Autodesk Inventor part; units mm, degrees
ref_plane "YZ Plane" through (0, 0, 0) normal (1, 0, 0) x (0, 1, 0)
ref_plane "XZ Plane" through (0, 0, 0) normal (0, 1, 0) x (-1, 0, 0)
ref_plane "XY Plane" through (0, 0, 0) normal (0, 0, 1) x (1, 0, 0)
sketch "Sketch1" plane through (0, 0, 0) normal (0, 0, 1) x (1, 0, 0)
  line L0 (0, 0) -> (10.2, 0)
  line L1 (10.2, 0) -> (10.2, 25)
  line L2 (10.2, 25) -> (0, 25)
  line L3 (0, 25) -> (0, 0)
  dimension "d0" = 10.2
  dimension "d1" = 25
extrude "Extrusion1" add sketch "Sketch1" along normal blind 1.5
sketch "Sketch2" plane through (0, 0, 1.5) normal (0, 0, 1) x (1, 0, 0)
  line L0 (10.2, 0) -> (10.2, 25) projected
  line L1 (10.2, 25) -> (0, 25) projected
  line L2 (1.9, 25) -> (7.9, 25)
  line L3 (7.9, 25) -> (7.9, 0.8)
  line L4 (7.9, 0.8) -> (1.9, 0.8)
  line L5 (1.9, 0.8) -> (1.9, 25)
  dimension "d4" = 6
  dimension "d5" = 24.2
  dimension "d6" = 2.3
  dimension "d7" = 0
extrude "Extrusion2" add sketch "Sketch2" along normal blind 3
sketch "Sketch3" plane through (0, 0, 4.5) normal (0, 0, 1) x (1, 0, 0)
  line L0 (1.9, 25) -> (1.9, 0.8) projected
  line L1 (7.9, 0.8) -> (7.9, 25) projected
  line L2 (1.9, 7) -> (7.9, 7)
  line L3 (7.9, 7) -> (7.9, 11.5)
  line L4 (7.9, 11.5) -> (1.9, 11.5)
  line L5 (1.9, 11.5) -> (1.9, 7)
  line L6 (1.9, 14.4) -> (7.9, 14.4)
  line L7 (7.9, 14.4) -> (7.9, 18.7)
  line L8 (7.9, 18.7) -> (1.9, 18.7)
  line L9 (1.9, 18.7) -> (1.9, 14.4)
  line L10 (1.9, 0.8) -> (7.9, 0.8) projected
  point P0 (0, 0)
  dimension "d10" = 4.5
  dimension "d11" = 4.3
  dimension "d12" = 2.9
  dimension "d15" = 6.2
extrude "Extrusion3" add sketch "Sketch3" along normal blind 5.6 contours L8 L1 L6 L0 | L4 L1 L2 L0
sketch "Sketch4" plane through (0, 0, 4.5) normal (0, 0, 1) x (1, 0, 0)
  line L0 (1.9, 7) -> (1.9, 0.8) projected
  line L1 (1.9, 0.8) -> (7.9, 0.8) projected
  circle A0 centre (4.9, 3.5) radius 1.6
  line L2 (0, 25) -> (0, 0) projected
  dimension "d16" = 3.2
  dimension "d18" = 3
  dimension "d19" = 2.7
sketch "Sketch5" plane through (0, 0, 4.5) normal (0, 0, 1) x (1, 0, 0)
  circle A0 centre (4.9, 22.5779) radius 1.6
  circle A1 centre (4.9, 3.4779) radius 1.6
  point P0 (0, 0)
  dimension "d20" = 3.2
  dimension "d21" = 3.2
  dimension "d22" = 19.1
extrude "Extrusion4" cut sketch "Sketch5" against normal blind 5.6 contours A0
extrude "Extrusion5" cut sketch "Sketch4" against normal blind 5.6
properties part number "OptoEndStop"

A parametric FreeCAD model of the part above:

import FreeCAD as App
import Part
import Sketcher

V = App.Vector
Q = App.Units.Quantity

doc = App.newDocument("Part")
params = doc.addObject("Spreadsheet::Sheet", "Params")
for row, (alias, value) in enumerate([
    ("sketch1_height", "25 mm"),
    ("sketch1_width", "10.2 mm"),
    ("pad1_length", "1.5 mm"),
    ("sketch2_width", "6 mm"),
    ("sketch2_height", "24.2 mm"),
    ("pad2_length", "3 mm"),
    ("sketch3_height", "4.3 mm"),
    ("sketch3_height2", "4.5 mm"),
    ("sketch3_width", "6 mm"),
    ("pad3_length", "5.6 mm"),
    ("sketch4_diameter", "3.2 mm"),
    ("pocket1_length", "5.6 mm"),
    ("sketch5_diameter", "3.2 mm"),
    ("pocket2_length", "5.6 mm"),
], start=1):
    params.set(f"A{row}", alias)
    params.set(f"B{row}", "=" + value)
    params.setAlias(f"B{row}", alias)

body = doc.addObject("PartDesign::Body", "Body")

sketch1 = body.newObject("Sketcher::SketchObject", "Sketch")
sketch1.AttachmentSupport = (doc.getObject("XY_Plane"), [""])
sketch1.MapMode = "FlatFace"
sketch1.addGeometry([
    Part.LineSegment(V(0, 25, 0), V(0, 0, 0)),
    Part.LineSegment(V(0, 0, 0), V(10, 0, 0)),
    Part.LineSegment(V(10, 0, 0), V(10, 25, 0)),
    Part.LineSegment(V(10, 25, 0), V(0, 25, 0)),
], False)
sketch1.addConstraint([
    Sketcher.Constraint("Coincident", 0, 2, 1, 1),
    Sketcher.Constraint("Coincident", 1, 2, 2, 1),
    Sketcher.Constraint("Coincident", 2, 2, 3, 1),
    Sketcher.Constraint("Coincident", 3, 2, 0, 1),
    Sketcher.Constraint("Vertical", 0),
    Sketcher.Constraint("Horizontal", 1),
    Sketcher.Constraint("Vertical", 2),
    Sketcher.Constraint("Horizontal", 3),
    Sketcher.Constraint("Coincident", 0, 2, -1, 1),
    Sketcher.Constraint("DistanceY", 0, 2, 0, 1, Q("25 mm")),
    Sketcher.Constraint("DistanceX", 1, 1, 1, 2, Q("10.2 mm")),
])
sketch1.setExpression("Constraints[9]", "Params.sketch1_height")
sketch1.setExpression("Constraints[10]", "Params.sketch1_width")
pad1 = body.newObject("PartDesign::Pad", "Pad")
pad1.Profile = sketch1
pad1.setExpression("Length", "Params.pad1_length")

sketch2 = body.newObject("Sketcher::SketchObject", "Sketch001")
sketch2.AttachmentSupport = (doc.getObject("XY_Plane"), [""])
sketch2.MapMode = "FlatFace"
sketch2.AttachmentOffset = App.Placement(V(0, 0, 1.5), App.Rotation())
sketch2.addGeometry([
    Part.LineSegment(V(8, 1, 0), V(8, 25, 0)),
    Part.LineSegment(V(8, 25, 0), V(2, 25, 0)),
    Part.LineSegment(V(2, 25, 0), V(2, 1, 0)),
    Part.LineSegment(V(2, 1, 0), V(8, 1, 0)),
], False)
sketch2.addConstraint([
    Sketcher.Constraint("Coincident", 0, 2, 1, 1),
    Sketcher.Constraint("Coincident", 1, 2, 2, 1),
    Sketcher.Constraint("Coincident", 2, 2, 3, 1),
    Sketcher.Constraint("Coincident", 3, 2, 0, 1),
    Sketcher.Constraint("Vertical", 0),
    Sketcher.Constraint("Horizontal", 1),
    Sketcher.Constraint("Vertical", 2),
    Sketcher.Constraint("Horizontal", 3),
    Sketcher.Constraint("DistanceX", 1, 2, 1, 1, Q("6 mm")),
    Sketcher.Constraint("DistanceY", 0, 1, 0, 2, Q("24.2 mm")),
    Sketcher.Constraint("DistanceY", -1, 1, 0, 2, Q("25 mm")),
    Sketcher.Constraint("DistanceX", -1, 1, 0, 2, Q("7.9 mm")),
])
sketch2.setExpression("Constraints[8]", "Params.sketch2_width")
sketch2.setExpression("Constraints[9]", "Params.sketch2_height")
pad2 = body.newObject("PartDesign::Pad", "Pad001")
pad2.Profile = sketch2
pad2.setExpression("Length", "Params.pad2_length")

sketch3 = body.newObject("Sketcher::SketchObject", "Sketch002")
sketch3.AttachmentSupport = (doc.getObject("XY_Plane"), [""])
sketch3.MapMode = "FlatFace"
sketch3.AttachmentOffset = App.Placement(V(0, 0, 4.5), App.Rotation())
sketch3.addGeometry([
    Part.LineSegment(V(7.9, 18.7, 0), V(1.9, 18.7, 0)),
    Part.LineSegment(V(1.9, 18.7, 0), V(1.9, 14.4, 0)),
    Part.LineSegment(V(1.9, 14.4, 0), V(7.9, 14.4, 0)),
    Part.LineSegment(V(7.9, 14.4, 0), V(7.9, 18.7, 0)),
    Part.LineSegment(V(7.9, 11.5, 0), V(1.9, 11.5, 0)),
    Part.LineSegment(V(1.9, 11.5, 0), V(1.9, 7, 0)),
    Part.LineSegment(V(1.9, 7, 0), V(7.9, 7, 0)),
    Part.LineSegment(V(7.9, 7, 0), V(7.9, 11.5, 0)),
], False)
sketch3.addConstraint([
    Sketcher.Constraint("Coincident", 0, 2, 1, 1),
    Sketcher.Constraint("Coincident", 1, 2, 2, 1),
    Sketcher.Constraint("Coincident", 2, 2, 3, 1),
    Sketcher.Constraint("Coincident", 3, 2, 0, 1),
    Sketcher.Constraint("Coincident", 4, 2, 5, 1),
    Sketcher.Constraint("Coincident", 5, 2, 6, 1),
    Sketcher.Constraint("Coincident", 6, 2, 7, 1),
    Sketcher.Constraint("Coincident", 7, 2, 4, 1),
    Sketcher.Constraint("Horizontal", 0),
    Sketcher.Constraint("Vertical", 1),
    Sketcher.Constraint("Horizontal", 2),
    Sketcher.Constraint("Vertical", 3),
    Sketcher.Constraint("Horizontal", 4),
    Sketcher.Constraint("Vertical", 5),
    Sketcher.Constraint("Horizontal", 6),
    Sketcher.Constraint("Vertical", 7),
    Sketcher.Constraint("Vertical", 1, 2, 4, 2),
    Sketcher.Constraint("Vertical", 3, 2, 6, 2),
    Sketcher.Constraint("DistanceY", 1, 2, 1, 1, Q("4.3 mm")),
    Sketcher.Constraint("DistanceY", 5, 2, 5, 1, Q("4.5 mm")),
    Sketcher.Constraint("DistanceY", 4, 2, 1, 2, Q("2.9 mm")),
    Sketcher.Constraint("DistanceX", 0, 2, 0, 1, Q("6 mm")),
    Sketcher.Constraint("DistanceY", -1, 1, 5, 2, Q("7 mm")),
    Sketcher.Constraint("DistanceX", -1, 1, 0, 2, Q("1.9 mm")),
])
sketch3.setExpression("Constraints[18]", "Params.sketch3_height")
sketch3.setExpression("Constraints[19]", "Params.sketch3_height2")
sketch3.setExpression("Constraints[21]", "Params.sketch3_width")
pad3 = body.newObject("PartDesign::Pad", "Pad002")
pad3.Profile = sketch3
pad3.setExpression("Length", "Params.pad3_length")

sketch4 = body.newObject("Sketcher::SketchObject", "Sketch003")
sketch4.AttachmentSupport = (doc.getObject("XY_Plane"), [""])
sketch4.MapMode = "FlatFace"
sketch4.AttachmentOffset = App.Placement(V(0, 0, 4.5), App.Rotation())
sketch4.addGeometry(Part.Circle(V(4.9, 22.6, 0), V(0, 0, 1), 1.6), False)
sketch4.addConstraint([
    Sketcher.Constraint("Diameter", 0, Q("3.2 mm")),
    Sketcher.Constraint("DistanceX", -1, 1, 0, 3, Q("4.9 mm")),
    Sketcher.Constraint("DistanceY", -1, 1, 0, 3, Q("22.578 mm")),
])
sketch4.setExpression("Constraints[0]", "Params.sketch4_diameter")
pocket1 = body.newObject("PartDesign::Pocket", "Pocket")
pocket1.Profile = sketch4
pocket1.setExpression("Length", "Params.pocket1_length")

sketch5 = body.newObject("Sketcher::SketchObject", "Sketch004")
sketch5.AttachmentSupport = (doc.getObject("XY_Plane"), [""])
sketch5.MapMode = "FlatFace"
sketch5.AttachmentOffset = App.Placement(V(0, 0, 4.5), App.Rotation())
sketch5.addGeometry(Part.Circle(V(4.9, 3.5, 0), V(0, 0, 1), 1.6), False)
sketch5.addConstraint([
    Sketcher.Constraint("Diameter", 0, Q("3.2 mm")),
    Sketcher.Constraint("DistanceX", -1, 1, 0, 3, Q("4.9 mm")),
    Sketcher.Constraint("DistanceY", -1, 1, 0, 3, Q("3.5 mm")),
])
sketch5.setExpression("Constraints[0]", "Params.sketch5_diameter")
pocket2 = body.newObject("PartDesign::Pocket", "Pocket001")
pocket2.Profile = sketch5
pocket2.setExpression("Length", "Params.pocket2_length")

doc.recompute()
